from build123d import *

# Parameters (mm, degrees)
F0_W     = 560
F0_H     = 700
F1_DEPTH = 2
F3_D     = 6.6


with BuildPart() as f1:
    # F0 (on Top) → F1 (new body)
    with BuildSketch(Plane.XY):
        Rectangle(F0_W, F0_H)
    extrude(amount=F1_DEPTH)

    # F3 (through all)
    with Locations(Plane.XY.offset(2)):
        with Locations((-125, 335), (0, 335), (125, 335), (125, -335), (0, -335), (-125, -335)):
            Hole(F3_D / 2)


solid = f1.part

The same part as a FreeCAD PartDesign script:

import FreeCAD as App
import Part
import Sketcher

V = App.Vector


def add_polygon(sketch, points):
    """Adds a closed chain of lines whose ends are joined by coincident constraints."""
    first, n = sketch.GeometryCount, len(points)
    for a, b in zip(points, points[1:] + points[:1]):
        sketch.addGeometry(Part.LineSegment(App.Vector(*a, 0), App.Vector(*b, 0)), False)
    for i in range(n):
        sketch.addConstraint(Sketcher.Constraint("Coincident", first + i, 2, first + (i + 1) % n, 1))

doc = App.newDocument("Part")
body = doc.addObject("PartDesign::Body", "Body")

# Sketch on XY plane
sketch1 = doc.addObject("Sketcher::SketchObject", "Sketch")
body.addObject(sketch1)
sketch1.AttachmentSupport = (doc.XY_Plane, [""])
sketch1.MapMode = "FlatFace"
add_polygon(sketch1, [(-280, 350), (-280, -350), (280, -350), (280, 350)])  # lines 0-3
sketch1.addConstraint([
    Sketcher.Constraint("Vertical", 0),
    Sketcher.Constraint("Horizontal", 1),
    Sketcher.Constraint("Vertical", 2),
    Sketcher.Constraint("Horizontal", 3),
    Sketcher.Constraint("Symmetric", 0, 2, 2, 2, -1, 1),
    Sketcher.Constraint("DistanceX", 1, 1, 1, 2, 560.0),
    Sketcher.Constraint("DistanceY", 0, 2, 0, 1, 700.0),
])
pad1 = doc.addObject("PartDesign::Pad", "Pad")
body.addObject(pad1)
pad1.Profile = sketch1
pad1.Length = 2

# Sketch on XY plane
sketch2 = doc.addObject("Sketcher::SketchObject", "Sketch001")
body.addObject(sketch2)
sketch2.AttachmentSupport = (doc.XY_Plane, [""])
sketch2.MapMode = "FlatFace"
sketch2.AttachmentOffset = App.Placement(V(0, 0, 2), App.Rotation())
sketch2.addGeometry([
    Part.Circle(V(-125, 335, 0), V(0, 0, 1), 3.3),  # 0
    Part.Circle(V(0, 335, 0), V(0, 0, 1), 3.3),  # 1
    Part.Circle(V(125, 335, 0), V(0, 0, 1), 3.3),  # 2
    Part.Circle(V(125, -335, 0), V(0, 0, 1), 3.3),  # 3
    Part.Circle(V(0, -335, 0), V(0, 0, 1), 3.3),  # 4
    Part.Circle(V(-125, -335, 0), V(0, 0, 1), 3.3),  # 5
], False)
sketch2.addConstraint([
    Sketcher.Constraint("Equal", 0, 1),
    Sketcher.Constraint("Equal", 1, 2),
    Sketcher.Constraint("Equal", 2, 3),
    Sketcher.Constraint("Equal", 3, 4),
    Sketcher.Constraint("Equal", 4, 5),
    Sketcher.Constraint("Symmetric", 0, 3, 3, 3, -1, 1),
    Sketcher.Constraint("Symmetric", 1, 3, 4, 3, -1, 1),
    Sketcher.Constraint("Symmetric", 2, 3, 5, 3, -1, 1),
    Sketcher.Constraint("Symmetric", 0, 3, 2, 3, -2),
    Sketcher.Constraint("PointOnObject", 1, 3, -2),
    Sketcher.Constraint("Horizontal", 0, 3, 1, 3),
    Sketcher.Constraint("Diameter", 0, 6.6),
    Sketcher.Constraint("DistanceX", 0, 3, -1, 1, 125.0),
    Sketcher.Constraint("DistanceY", -1, 1, 0, 3, 335.0),
])
doc.recompute()
hole = doc.addObject("PartDesign::Hole", "Hole")
body.addObject(hole)
hole.Profile = sketch2
hole.ThreadType = "None"
hole.Diameter = 6.6
hole.DepthType = "ThroughAll"

doc.recompute()
